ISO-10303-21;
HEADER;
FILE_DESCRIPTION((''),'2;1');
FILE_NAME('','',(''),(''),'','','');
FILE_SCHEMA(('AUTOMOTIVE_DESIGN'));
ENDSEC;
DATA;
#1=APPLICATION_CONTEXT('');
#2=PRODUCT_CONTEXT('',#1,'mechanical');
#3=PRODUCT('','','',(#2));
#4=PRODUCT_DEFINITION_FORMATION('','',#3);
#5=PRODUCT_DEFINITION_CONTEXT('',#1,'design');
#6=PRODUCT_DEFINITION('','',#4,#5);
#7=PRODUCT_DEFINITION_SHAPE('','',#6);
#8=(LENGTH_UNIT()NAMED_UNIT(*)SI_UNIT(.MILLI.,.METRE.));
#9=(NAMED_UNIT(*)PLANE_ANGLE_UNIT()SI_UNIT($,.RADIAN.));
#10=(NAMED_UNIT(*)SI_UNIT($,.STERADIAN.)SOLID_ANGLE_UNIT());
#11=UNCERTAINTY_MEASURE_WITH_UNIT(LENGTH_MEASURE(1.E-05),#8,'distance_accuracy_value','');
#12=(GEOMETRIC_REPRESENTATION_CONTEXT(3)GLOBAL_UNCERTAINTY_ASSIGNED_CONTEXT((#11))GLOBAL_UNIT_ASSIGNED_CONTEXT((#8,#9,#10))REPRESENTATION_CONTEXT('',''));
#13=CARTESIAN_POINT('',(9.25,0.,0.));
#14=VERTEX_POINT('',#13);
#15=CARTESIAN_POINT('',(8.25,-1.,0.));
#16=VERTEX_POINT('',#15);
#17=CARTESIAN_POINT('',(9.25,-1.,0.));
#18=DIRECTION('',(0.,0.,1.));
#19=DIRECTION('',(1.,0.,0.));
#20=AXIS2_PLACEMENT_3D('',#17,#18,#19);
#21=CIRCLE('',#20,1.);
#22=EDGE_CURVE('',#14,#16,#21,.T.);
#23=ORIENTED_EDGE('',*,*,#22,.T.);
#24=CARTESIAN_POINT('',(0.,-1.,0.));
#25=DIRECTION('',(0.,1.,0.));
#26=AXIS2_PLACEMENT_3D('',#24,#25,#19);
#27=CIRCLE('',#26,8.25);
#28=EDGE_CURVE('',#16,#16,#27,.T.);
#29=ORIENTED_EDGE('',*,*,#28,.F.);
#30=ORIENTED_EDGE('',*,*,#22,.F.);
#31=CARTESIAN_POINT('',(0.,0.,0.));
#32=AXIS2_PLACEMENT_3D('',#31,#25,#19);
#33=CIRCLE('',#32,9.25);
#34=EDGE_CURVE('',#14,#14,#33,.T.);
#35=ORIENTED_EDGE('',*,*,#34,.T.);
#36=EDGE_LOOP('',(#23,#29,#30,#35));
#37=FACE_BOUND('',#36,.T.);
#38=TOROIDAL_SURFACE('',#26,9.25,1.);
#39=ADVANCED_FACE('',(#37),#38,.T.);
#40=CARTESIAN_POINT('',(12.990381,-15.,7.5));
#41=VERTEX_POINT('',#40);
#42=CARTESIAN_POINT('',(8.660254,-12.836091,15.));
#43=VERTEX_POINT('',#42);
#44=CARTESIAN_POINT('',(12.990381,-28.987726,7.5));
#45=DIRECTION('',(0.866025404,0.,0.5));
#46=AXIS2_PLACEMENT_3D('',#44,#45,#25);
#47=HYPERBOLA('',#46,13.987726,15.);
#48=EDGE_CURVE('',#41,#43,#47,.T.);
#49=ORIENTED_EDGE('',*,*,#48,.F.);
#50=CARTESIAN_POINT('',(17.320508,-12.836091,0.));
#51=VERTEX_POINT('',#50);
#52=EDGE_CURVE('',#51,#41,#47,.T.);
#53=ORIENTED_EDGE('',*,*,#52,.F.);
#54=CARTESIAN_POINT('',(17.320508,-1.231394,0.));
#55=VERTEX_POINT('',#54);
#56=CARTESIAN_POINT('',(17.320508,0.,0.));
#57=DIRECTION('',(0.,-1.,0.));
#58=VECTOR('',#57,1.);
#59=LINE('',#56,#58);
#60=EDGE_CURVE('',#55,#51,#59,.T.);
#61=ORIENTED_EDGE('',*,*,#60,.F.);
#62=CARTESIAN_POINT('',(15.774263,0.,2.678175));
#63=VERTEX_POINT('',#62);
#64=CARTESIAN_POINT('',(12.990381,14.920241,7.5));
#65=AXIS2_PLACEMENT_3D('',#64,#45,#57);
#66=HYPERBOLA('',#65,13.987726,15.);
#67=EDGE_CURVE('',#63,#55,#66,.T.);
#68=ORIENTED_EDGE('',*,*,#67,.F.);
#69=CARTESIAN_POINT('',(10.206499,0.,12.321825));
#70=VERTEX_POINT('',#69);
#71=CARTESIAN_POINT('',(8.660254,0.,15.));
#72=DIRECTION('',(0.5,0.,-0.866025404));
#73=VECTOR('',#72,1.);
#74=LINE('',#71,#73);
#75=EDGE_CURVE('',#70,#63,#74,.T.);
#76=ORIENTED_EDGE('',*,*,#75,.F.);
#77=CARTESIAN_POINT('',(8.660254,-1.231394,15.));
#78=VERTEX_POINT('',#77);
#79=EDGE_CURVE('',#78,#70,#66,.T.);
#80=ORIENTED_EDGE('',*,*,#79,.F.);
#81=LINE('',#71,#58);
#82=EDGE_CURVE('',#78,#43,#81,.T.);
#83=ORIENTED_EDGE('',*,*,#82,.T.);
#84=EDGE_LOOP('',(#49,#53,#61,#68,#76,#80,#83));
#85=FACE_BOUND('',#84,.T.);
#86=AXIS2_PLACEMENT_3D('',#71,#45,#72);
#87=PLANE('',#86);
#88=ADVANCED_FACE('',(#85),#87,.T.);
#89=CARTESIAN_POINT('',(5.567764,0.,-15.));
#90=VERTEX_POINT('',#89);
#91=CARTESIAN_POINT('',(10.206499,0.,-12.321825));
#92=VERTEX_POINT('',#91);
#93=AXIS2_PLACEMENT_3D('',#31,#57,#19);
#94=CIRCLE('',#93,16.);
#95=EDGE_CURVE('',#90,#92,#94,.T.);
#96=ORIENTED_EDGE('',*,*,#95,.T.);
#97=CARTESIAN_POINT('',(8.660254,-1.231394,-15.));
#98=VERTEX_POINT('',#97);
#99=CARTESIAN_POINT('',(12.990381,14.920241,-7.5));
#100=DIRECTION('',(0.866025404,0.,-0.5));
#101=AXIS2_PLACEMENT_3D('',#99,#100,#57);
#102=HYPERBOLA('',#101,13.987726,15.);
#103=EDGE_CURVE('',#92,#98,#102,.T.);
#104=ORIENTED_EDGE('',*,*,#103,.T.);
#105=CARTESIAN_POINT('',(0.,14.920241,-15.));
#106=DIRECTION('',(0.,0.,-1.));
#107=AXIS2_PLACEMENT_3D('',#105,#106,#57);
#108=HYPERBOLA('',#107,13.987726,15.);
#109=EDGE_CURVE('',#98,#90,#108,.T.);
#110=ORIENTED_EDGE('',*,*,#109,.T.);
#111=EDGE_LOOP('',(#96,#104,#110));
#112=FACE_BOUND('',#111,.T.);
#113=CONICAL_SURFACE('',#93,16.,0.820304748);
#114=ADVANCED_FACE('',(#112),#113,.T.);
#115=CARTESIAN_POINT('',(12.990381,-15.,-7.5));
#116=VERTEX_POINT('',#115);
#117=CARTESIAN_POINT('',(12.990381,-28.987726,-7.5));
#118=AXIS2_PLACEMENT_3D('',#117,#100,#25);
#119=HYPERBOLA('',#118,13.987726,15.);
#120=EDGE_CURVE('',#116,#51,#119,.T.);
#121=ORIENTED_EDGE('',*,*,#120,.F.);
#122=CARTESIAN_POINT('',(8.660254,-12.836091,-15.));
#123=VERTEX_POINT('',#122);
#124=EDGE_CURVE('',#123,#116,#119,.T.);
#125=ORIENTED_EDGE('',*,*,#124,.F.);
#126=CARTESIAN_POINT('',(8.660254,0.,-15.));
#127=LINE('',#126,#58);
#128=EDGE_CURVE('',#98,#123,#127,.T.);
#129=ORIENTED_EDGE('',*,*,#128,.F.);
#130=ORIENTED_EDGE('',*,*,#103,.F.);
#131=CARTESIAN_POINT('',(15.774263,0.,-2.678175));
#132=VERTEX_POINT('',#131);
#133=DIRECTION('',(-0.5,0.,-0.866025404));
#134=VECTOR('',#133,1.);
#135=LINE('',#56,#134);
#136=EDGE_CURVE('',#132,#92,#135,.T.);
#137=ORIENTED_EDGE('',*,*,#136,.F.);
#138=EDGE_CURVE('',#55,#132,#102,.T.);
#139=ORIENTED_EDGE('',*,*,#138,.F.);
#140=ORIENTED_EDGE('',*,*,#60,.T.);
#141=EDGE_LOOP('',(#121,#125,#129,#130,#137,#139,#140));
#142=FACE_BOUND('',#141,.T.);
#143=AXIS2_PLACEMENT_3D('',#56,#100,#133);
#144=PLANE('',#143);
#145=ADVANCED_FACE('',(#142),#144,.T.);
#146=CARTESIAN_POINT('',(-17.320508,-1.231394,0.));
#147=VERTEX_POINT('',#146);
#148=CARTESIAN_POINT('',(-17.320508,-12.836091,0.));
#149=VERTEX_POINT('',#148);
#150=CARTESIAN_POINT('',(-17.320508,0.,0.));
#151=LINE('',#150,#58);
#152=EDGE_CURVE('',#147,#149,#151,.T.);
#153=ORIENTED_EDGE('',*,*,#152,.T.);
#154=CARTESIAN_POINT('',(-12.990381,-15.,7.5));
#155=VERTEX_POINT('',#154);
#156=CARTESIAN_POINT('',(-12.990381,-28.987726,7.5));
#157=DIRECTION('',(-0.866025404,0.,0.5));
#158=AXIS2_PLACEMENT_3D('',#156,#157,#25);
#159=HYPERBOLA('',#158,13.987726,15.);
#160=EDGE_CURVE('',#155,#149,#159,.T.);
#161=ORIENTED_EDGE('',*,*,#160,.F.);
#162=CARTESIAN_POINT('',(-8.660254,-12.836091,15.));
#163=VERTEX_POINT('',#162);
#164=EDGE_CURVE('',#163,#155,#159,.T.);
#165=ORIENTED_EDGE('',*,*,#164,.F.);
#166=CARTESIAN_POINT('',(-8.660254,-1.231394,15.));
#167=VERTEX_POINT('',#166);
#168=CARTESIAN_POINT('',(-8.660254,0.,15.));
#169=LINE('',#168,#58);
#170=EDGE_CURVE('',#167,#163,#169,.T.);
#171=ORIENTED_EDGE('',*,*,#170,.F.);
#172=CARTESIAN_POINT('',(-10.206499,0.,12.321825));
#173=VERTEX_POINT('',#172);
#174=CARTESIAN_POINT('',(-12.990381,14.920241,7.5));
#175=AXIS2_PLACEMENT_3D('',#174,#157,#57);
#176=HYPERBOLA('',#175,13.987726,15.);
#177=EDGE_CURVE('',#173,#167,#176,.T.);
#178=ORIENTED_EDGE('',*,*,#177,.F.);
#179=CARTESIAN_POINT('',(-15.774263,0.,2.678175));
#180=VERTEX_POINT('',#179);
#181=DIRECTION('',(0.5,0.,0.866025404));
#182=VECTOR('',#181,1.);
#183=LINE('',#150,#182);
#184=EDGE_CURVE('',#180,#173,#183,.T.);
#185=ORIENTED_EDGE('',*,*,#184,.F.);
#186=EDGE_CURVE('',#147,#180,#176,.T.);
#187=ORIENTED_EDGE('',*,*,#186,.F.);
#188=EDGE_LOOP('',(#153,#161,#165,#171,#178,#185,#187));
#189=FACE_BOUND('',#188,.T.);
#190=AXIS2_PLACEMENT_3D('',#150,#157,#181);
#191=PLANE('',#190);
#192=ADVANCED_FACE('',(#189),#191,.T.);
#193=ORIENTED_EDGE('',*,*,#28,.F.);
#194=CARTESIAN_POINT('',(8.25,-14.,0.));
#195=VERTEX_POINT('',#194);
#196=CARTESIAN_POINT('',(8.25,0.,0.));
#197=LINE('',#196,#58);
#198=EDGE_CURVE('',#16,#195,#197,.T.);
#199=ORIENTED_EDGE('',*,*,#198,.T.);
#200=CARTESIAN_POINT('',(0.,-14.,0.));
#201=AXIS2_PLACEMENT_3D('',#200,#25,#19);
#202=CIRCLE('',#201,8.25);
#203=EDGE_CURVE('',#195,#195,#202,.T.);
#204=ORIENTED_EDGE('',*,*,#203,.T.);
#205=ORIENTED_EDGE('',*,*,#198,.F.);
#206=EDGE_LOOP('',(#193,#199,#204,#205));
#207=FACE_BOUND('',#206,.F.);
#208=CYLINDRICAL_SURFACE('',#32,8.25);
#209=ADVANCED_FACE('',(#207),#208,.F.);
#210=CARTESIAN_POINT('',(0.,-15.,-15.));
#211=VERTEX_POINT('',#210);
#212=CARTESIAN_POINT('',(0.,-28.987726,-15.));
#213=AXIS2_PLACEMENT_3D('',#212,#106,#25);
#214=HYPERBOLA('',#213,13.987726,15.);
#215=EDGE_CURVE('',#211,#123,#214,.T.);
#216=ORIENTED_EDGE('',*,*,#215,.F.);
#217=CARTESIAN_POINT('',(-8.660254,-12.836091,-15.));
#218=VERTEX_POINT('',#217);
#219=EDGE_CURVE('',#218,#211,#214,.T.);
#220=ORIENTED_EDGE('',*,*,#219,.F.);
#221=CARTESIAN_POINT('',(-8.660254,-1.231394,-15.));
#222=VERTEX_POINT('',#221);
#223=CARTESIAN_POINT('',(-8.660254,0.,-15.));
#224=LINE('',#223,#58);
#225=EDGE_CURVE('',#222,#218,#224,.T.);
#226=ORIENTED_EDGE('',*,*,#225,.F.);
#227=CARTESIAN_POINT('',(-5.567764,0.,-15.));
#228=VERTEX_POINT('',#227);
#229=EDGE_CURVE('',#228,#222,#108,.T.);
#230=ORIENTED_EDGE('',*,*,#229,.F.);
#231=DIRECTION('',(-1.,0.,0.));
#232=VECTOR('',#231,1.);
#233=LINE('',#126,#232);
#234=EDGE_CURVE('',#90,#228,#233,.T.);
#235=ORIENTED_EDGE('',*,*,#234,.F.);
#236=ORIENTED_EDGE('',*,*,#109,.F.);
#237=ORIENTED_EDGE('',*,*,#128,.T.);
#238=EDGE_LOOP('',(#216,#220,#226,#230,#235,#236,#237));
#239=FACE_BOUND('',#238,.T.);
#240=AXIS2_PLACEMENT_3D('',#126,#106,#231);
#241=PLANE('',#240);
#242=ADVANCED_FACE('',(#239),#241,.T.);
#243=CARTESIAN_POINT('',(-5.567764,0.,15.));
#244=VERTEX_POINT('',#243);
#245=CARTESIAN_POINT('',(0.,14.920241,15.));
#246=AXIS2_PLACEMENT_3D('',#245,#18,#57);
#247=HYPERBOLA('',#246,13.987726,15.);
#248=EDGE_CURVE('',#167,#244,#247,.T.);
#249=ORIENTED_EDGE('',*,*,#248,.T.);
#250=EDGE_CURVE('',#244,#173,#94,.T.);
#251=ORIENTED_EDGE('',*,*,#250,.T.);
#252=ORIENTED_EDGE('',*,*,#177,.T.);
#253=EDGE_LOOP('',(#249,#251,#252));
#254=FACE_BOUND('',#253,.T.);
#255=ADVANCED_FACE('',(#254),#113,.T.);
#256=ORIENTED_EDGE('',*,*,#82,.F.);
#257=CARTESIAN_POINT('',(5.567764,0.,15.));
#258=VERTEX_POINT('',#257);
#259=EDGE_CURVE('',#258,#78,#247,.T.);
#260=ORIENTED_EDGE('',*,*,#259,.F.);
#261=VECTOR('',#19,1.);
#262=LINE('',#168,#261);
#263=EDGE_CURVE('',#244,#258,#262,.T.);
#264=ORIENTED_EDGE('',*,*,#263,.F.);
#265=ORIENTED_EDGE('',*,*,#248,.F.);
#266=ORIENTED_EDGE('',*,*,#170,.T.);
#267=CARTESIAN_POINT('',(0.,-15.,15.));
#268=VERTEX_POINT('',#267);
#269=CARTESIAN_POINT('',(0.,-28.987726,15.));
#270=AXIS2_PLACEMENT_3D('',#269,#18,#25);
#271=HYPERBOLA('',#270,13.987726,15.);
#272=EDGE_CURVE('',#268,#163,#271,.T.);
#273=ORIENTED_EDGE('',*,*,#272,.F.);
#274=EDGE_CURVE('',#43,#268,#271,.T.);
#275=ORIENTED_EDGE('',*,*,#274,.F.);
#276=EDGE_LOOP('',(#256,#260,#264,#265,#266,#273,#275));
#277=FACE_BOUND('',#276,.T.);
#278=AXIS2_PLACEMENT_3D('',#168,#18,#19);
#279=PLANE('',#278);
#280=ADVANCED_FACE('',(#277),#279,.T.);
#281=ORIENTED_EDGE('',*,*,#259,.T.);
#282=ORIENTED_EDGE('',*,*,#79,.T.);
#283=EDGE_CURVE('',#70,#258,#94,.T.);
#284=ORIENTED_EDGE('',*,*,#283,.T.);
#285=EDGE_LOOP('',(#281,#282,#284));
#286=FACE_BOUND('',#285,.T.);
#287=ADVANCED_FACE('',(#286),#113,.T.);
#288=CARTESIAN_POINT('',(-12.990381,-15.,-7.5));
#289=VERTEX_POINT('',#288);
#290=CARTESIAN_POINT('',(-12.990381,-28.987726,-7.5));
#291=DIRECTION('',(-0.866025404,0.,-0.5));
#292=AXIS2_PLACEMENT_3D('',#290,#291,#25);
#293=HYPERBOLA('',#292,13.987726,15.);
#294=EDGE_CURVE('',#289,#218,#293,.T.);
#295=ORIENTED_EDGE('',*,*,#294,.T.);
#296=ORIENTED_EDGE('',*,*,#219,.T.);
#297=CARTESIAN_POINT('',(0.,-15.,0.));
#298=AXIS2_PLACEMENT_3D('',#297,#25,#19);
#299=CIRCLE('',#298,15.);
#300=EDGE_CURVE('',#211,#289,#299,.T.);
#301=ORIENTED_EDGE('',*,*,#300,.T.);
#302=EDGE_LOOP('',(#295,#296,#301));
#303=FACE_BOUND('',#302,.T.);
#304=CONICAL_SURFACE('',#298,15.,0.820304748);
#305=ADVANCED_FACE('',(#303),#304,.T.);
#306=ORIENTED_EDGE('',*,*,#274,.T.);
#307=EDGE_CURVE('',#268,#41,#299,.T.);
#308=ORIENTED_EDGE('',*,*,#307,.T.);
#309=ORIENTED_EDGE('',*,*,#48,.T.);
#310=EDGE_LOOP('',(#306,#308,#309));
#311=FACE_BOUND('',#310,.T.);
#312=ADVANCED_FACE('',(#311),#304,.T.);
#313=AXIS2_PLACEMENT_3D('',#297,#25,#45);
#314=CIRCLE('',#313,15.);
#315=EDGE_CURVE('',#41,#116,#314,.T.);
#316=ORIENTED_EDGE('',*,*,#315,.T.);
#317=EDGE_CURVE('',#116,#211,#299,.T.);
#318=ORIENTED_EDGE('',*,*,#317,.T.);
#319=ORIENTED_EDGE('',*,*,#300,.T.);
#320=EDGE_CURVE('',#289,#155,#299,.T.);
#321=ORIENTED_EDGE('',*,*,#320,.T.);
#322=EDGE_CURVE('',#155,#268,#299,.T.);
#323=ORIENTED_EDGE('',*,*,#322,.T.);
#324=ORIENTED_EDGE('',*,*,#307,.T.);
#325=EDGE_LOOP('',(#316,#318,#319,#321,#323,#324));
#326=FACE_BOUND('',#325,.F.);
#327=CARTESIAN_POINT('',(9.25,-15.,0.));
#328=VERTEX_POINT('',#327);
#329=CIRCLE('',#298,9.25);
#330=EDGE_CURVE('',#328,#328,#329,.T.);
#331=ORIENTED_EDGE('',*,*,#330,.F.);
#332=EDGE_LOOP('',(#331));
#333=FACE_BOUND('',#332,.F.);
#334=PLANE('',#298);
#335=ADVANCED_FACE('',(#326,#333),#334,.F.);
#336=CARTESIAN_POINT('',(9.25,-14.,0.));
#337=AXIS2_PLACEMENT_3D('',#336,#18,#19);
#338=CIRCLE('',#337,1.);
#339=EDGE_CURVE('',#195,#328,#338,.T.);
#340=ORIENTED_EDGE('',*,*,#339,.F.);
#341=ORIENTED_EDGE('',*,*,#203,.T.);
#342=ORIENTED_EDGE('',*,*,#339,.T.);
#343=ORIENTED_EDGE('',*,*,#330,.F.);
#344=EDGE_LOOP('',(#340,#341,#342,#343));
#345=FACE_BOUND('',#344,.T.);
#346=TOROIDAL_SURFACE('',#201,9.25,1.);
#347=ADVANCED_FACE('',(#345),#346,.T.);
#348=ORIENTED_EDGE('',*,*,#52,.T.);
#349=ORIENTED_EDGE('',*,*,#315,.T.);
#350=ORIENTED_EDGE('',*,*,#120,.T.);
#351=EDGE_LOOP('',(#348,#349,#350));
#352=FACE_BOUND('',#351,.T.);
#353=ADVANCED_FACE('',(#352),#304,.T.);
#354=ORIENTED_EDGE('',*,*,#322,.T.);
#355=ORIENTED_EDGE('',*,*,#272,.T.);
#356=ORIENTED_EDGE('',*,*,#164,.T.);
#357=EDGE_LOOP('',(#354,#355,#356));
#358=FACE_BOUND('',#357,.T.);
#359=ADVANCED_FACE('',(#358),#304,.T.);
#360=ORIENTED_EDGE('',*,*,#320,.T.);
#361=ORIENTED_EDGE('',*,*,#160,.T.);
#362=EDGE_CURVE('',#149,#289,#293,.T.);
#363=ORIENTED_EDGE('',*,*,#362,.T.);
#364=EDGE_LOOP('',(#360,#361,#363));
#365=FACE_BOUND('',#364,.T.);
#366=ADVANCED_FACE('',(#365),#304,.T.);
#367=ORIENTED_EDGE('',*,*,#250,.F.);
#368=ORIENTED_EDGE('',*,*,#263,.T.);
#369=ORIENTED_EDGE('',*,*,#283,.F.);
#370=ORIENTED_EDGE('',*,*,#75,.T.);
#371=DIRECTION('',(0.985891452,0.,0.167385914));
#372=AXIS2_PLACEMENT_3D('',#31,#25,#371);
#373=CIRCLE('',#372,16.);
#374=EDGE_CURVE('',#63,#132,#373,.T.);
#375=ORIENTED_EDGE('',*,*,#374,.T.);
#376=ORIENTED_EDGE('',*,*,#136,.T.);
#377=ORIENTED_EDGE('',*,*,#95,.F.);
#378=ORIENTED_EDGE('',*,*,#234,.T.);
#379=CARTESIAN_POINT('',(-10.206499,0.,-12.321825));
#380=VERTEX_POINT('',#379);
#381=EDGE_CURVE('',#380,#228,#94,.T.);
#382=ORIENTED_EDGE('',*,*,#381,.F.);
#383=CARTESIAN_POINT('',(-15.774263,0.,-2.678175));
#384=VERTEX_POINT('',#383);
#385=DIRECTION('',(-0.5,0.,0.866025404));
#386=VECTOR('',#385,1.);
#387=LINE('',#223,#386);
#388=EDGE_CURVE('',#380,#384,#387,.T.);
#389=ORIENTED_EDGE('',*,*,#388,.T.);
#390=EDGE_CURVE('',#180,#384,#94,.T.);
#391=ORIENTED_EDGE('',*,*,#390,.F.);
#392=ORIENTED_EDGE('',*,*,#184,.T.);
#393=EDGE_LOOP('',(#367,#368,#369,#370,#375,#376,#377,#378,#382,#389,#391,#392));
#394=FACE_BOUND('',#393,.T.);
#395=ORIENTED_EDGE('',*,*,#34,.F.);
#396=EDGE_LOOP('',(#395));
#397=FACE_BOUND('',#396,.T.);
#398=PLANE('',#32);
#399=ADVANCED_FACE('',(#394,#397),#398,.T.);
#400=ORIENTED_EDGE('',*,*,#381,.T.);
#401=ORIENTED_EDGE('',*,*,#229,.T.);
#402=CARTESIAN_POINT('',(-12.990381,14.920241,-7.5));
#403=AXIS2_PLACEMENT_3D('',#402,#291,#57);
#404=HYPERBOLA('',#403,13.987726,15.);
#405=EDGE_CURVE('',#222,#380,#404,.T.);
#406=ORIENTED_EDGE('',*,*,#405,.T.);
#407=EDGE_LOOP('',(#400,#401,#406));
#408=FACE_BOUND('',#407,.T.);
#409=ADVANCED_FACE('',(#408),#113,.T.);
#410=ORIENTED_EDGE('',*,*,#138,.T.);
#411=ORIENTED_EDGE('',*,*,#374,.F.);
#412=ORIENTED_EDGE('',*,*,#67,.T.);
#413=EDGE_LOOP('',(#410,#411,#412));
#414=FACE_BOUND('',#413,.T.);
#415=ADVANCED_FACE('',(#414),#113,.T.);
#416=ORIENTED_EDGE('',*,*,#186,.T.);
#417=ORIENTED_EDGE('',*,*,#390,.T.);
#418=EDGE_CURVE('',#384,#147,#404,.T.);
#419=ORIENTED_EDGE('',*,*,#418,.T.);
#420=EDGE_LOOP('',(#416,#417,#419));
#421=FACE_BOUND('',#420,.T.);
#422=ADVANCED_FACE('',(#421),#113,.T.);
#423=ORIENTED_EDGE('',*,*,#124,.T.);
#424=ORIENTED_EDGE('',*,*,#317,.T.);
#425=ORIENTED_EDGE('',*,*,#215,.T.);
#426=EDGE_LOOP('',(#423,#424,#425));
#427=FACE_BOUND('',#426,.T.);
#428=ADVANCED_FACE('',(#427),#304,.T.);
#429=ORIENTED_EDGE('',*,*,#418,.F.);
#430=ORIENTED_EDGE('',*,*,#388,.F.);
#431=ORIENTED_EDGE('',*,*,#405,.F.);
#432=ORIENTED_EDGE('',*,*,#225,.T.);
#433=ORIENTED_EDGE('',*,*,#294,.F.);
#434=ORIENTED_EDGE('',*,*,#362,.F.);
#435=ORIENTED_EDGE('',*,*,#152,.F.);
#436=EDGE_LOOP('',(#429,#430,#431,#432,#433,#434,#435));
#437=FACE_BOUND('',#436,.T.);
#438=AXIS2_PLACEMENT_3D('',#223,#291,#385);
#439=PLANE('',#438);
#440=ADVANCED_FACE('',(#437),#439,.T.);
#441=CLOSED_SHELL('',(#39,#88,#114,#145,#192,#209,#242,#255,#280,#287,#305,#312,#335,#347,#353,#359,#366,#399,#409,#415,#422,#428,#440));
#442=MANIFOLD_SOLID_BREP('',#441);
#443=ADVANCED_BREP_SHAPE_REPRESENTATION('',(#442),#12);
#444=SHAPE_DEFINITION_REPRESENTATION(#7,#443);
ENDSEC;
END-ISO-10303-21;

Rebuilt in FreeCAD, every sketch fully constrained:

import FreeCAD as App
import Part
import Sketcher

V = App.Vector
Q = App.Units.Quantity


def edges_at(feature, points):
    """Names of the edges that pass closest to the given points."""
    edges = feature.Shape.Edges
    near = lambda p: min(range(len(edges)), key=lambda i: edges[i].distToShape(Part.Vertex(*p))[0])
    return sorted({f"Edge{near(p) + 1}" for p in points})

doc = App.newDocument("Part")
body = doc.addObject("PartDesign::Body", "Body")

# Sketch on XZ plane
sketch1 = body.newObject("Sketcher::SketchObject", "Sketch")
sketch1.AttachmentSupport = (doc.getObject("XZ_Plane"), [""])
sketch1.MapMode = "FlatFace"
sketch1.addGeometry([
    Part.LineSegment(V(-9, 15, 0), V(9, 15, 0)),  # 0
    Part.LineSegment(V(9, 15, 0), V(17, 0, 0)),  # 1
    Part.LineSegment(V(17, 0, 0), V(9, -15, 0)),  # 2
    Part.LineSegment(V(9, -15, 0), V(-9, -15, 0)),  # 3
    Part.LineSegment(V(-9, -15, 0), V(-17, 0, 0)),  # 4
    Part.LineSegment(V(-17, 0, 0), V(-9, 15, 0)),  # 5
], False)
sketch1.addConstraint([
    Sketcher.Constraint("Coincident", 0, 2, 1, 1),
    Sketcher.Constraint("Coincident", 1, 2, 2, 1),
    Sketcher.Constraint("Coincident", 2, 2, 3, 1),
    Sketcher.Constraint("Coincident", 3, 2, 4, 1),
    Sketcher.Constraint("Coincident", 4, 2, 5, 1),
    Sketcher.Constraint("Coincident", 5, 2, 0, 1),
    Sketcher.Constraint("Horizontal", 0),
    Sketcher.Constraint("Horizontal", 3),
    Sketcher.Constraint("Symmetric", 0, 2, 3, 2, -1, 1),
    Sketcher.Constraint("Symmetric", 1, 2, 4, 2, -1, 1),
    Sketcher.Constraint("PointOnObject", 1, 2, -1),
    Sketcher.Constraint("Parallel", 2, 5),
    Sketcher.Constraint("Vertical", 0, 2, 2, 2),
    Sketcher.Constraint("Angle", 1, Q("-60 deg")),
    Sketcher.Constraint("DistanceY", -1, 1, 0, 2, 15.0),
    Sketcher.Constraint("DistanceX", 0, 1, 0, 2, 17.320508),
])
pad1 = body.newObject("PartDesign::Pad", "Pad")
pad1.Profile = sketch1
pad1.Length = 15

# Sketch on XZ plane
sketch2 = body.newObject("Sketcher::SketchObject", "Sketch001")
sketch2.AttachmentSupport = (doc.getObject("XZ_Plane"), [""])
sketch2.MapMode = "FlatFace"
sketch2.addGeometry([
    Part.LineSegment(V(-39, -37, 0), V(-39, 37, 0)),  # 0
    Part.LineSegment(V(-39, 37, 0), V(39, 37, 0)),  # 1
    Part.LineSegment(V(39, 37, 0), V(39, -37, 0)),  # 2
    Part.LineSegment(V(39, -37, 0), V(-39, -37, 0)),  # 3
    Part.Circle(V(0, 0, 0), V(0, 0, 1), 16),  # 4
], False)
sketch2.addConstraint([
    Sketcher.Constraint("Coincident", 0, 2, 1, 1),
    Sketcher.Constraint("Coincident", 1, 2, 2, 1),
    Sketcher.Constraint("Coincident", 2, 2, 3, 1),
    Sketcher.Constraint("Coincident", 3, 2, 0, 1),
    Sketcher.Constraint("Vertical", 0),
    Sketcher.Constraint("Horizontal", 1),
    Sketcher.Constraint("Vertical", 2),
    Sketcher.Constraint("Horizontal", 3),
    Sketcher.Constraint("Coincident", 4, 3, -1, 1),
    Sketcher.Constraint("Symmetric", 0, 2, 2, 2, -1, 1),
    Sketcher.Constraint("Diameter", 4, 32.0),
    Sketcher.Constraint("DistanceX", 1, 1, 1, 2, 78.456),
    Sketcher.Constraint("DistanceY", 0, 1, 0, 2, 73.814),
])
pocket1 = body.newObject("PartDesign::Pocket", "Pocket")
pocket1.Profile = sketch2
pocket1.Length = 15
pocket1.Reversed = True
pocket1.TaperAngle = 47

# Sketch on XZ plane
sketch3 = body.newObject("Sketcher::SketchObject", "Sketch002")
sketch3.AttachmentSupport = (doc.getObject("XZ_Plane"), [""])
sketch3.MapMode = "FlatFace"
sketch3.AttachmentOffset = App.Placement(V(0, 0, 15), App.Rotation())
sketch3.addGeometry([
    Part.LineSegment(V(-39, 37, 0), V(-39, -37, 0)),  # 0
    Part.LineSegment(V(-39, -37, 0), V(39, -37, 0)),  # 1
    Part.LineSegment(V(39, -37, 0), V(39, 37, 0)),  # 2
    Part.LineSegment(V(39, 37, 0), V(-39, 37, 0)),  # 3
    Part.Circle(V(0, 0, 0), V(0, 0, 1), 15),  # 4
], False)
sketch3.addConstraint([
    Sketcher.Constraint("Coincident", 0, 2, 1, 1),
    Sketcher.Constraint("Coincident", 1, 2, 2, 1),
    Sketcher.Constraint("Coincident", 2, 2, 3, 1),
    Sketcher.Constraint("Coincident", 3, 2, 0, 1),
    Sketcher.Constraint("Vertical", 0),
    Sketcher.Constraint("Horizontal", 1),
    Sketcher.Constraint("Vertical", 2),
    Sketcher.Constraint("Horizontal", 3),
    Sketcher.Constraint("Coincident", 4, 3, -1, 1),
    Sketcher.Constraint("Symmetric", 0, 2, 2, 2, -1, 1),
    Sketcher.Constraint("Diameter", 4, 30.0),
    Sketcher.Constraint("DistanceX", 1, 1, 1, 2, 78.456),
    Sketcher.Constraint("DistanceY", 0, 2, 0, 1, 73.814),
])
pocket2 = body.newObject("PartDesign::Pocket", "Pocket001")
pocket2.Profile = sketch3
pocket2.Length = 15
pocket2.TaperAngle = 47

# Sketch on XZ plane
sketch4 = body.newObject("Sketcher::SketchObject", "Sketch003")
sketch4.AttachmentSupport = (doc.getObject("XZ_Plane"), [""])
sketch4.MapMode = "FlatFace"
sketch4.addGeometry(Part.Circle(V(0, 0, 0), V(0, 0, 1), 8), False)
sketch4.addConstraint([
    Sketcher.Constraint("Coincident", 0, 3, -1, 1),
    Sketcher.Constraint("Diameter", 0, 16.5),
])
pocket3 = body.newObject("PartDesign::Pocket", "Pocket002")
pocket3.Profile = sketch4
pocket3.Length = 15
pocket3.Reversed = True
doc.recompute()

fillet = body.newObject("PartDesign::Fillet", "Fillet")
fillet.Base = (pocket3, edges_at(pocket3, [(-8.25, -15, 0), (-8.25, 0, 0)]))
fillet.Radius = 1

doc.recompute()
